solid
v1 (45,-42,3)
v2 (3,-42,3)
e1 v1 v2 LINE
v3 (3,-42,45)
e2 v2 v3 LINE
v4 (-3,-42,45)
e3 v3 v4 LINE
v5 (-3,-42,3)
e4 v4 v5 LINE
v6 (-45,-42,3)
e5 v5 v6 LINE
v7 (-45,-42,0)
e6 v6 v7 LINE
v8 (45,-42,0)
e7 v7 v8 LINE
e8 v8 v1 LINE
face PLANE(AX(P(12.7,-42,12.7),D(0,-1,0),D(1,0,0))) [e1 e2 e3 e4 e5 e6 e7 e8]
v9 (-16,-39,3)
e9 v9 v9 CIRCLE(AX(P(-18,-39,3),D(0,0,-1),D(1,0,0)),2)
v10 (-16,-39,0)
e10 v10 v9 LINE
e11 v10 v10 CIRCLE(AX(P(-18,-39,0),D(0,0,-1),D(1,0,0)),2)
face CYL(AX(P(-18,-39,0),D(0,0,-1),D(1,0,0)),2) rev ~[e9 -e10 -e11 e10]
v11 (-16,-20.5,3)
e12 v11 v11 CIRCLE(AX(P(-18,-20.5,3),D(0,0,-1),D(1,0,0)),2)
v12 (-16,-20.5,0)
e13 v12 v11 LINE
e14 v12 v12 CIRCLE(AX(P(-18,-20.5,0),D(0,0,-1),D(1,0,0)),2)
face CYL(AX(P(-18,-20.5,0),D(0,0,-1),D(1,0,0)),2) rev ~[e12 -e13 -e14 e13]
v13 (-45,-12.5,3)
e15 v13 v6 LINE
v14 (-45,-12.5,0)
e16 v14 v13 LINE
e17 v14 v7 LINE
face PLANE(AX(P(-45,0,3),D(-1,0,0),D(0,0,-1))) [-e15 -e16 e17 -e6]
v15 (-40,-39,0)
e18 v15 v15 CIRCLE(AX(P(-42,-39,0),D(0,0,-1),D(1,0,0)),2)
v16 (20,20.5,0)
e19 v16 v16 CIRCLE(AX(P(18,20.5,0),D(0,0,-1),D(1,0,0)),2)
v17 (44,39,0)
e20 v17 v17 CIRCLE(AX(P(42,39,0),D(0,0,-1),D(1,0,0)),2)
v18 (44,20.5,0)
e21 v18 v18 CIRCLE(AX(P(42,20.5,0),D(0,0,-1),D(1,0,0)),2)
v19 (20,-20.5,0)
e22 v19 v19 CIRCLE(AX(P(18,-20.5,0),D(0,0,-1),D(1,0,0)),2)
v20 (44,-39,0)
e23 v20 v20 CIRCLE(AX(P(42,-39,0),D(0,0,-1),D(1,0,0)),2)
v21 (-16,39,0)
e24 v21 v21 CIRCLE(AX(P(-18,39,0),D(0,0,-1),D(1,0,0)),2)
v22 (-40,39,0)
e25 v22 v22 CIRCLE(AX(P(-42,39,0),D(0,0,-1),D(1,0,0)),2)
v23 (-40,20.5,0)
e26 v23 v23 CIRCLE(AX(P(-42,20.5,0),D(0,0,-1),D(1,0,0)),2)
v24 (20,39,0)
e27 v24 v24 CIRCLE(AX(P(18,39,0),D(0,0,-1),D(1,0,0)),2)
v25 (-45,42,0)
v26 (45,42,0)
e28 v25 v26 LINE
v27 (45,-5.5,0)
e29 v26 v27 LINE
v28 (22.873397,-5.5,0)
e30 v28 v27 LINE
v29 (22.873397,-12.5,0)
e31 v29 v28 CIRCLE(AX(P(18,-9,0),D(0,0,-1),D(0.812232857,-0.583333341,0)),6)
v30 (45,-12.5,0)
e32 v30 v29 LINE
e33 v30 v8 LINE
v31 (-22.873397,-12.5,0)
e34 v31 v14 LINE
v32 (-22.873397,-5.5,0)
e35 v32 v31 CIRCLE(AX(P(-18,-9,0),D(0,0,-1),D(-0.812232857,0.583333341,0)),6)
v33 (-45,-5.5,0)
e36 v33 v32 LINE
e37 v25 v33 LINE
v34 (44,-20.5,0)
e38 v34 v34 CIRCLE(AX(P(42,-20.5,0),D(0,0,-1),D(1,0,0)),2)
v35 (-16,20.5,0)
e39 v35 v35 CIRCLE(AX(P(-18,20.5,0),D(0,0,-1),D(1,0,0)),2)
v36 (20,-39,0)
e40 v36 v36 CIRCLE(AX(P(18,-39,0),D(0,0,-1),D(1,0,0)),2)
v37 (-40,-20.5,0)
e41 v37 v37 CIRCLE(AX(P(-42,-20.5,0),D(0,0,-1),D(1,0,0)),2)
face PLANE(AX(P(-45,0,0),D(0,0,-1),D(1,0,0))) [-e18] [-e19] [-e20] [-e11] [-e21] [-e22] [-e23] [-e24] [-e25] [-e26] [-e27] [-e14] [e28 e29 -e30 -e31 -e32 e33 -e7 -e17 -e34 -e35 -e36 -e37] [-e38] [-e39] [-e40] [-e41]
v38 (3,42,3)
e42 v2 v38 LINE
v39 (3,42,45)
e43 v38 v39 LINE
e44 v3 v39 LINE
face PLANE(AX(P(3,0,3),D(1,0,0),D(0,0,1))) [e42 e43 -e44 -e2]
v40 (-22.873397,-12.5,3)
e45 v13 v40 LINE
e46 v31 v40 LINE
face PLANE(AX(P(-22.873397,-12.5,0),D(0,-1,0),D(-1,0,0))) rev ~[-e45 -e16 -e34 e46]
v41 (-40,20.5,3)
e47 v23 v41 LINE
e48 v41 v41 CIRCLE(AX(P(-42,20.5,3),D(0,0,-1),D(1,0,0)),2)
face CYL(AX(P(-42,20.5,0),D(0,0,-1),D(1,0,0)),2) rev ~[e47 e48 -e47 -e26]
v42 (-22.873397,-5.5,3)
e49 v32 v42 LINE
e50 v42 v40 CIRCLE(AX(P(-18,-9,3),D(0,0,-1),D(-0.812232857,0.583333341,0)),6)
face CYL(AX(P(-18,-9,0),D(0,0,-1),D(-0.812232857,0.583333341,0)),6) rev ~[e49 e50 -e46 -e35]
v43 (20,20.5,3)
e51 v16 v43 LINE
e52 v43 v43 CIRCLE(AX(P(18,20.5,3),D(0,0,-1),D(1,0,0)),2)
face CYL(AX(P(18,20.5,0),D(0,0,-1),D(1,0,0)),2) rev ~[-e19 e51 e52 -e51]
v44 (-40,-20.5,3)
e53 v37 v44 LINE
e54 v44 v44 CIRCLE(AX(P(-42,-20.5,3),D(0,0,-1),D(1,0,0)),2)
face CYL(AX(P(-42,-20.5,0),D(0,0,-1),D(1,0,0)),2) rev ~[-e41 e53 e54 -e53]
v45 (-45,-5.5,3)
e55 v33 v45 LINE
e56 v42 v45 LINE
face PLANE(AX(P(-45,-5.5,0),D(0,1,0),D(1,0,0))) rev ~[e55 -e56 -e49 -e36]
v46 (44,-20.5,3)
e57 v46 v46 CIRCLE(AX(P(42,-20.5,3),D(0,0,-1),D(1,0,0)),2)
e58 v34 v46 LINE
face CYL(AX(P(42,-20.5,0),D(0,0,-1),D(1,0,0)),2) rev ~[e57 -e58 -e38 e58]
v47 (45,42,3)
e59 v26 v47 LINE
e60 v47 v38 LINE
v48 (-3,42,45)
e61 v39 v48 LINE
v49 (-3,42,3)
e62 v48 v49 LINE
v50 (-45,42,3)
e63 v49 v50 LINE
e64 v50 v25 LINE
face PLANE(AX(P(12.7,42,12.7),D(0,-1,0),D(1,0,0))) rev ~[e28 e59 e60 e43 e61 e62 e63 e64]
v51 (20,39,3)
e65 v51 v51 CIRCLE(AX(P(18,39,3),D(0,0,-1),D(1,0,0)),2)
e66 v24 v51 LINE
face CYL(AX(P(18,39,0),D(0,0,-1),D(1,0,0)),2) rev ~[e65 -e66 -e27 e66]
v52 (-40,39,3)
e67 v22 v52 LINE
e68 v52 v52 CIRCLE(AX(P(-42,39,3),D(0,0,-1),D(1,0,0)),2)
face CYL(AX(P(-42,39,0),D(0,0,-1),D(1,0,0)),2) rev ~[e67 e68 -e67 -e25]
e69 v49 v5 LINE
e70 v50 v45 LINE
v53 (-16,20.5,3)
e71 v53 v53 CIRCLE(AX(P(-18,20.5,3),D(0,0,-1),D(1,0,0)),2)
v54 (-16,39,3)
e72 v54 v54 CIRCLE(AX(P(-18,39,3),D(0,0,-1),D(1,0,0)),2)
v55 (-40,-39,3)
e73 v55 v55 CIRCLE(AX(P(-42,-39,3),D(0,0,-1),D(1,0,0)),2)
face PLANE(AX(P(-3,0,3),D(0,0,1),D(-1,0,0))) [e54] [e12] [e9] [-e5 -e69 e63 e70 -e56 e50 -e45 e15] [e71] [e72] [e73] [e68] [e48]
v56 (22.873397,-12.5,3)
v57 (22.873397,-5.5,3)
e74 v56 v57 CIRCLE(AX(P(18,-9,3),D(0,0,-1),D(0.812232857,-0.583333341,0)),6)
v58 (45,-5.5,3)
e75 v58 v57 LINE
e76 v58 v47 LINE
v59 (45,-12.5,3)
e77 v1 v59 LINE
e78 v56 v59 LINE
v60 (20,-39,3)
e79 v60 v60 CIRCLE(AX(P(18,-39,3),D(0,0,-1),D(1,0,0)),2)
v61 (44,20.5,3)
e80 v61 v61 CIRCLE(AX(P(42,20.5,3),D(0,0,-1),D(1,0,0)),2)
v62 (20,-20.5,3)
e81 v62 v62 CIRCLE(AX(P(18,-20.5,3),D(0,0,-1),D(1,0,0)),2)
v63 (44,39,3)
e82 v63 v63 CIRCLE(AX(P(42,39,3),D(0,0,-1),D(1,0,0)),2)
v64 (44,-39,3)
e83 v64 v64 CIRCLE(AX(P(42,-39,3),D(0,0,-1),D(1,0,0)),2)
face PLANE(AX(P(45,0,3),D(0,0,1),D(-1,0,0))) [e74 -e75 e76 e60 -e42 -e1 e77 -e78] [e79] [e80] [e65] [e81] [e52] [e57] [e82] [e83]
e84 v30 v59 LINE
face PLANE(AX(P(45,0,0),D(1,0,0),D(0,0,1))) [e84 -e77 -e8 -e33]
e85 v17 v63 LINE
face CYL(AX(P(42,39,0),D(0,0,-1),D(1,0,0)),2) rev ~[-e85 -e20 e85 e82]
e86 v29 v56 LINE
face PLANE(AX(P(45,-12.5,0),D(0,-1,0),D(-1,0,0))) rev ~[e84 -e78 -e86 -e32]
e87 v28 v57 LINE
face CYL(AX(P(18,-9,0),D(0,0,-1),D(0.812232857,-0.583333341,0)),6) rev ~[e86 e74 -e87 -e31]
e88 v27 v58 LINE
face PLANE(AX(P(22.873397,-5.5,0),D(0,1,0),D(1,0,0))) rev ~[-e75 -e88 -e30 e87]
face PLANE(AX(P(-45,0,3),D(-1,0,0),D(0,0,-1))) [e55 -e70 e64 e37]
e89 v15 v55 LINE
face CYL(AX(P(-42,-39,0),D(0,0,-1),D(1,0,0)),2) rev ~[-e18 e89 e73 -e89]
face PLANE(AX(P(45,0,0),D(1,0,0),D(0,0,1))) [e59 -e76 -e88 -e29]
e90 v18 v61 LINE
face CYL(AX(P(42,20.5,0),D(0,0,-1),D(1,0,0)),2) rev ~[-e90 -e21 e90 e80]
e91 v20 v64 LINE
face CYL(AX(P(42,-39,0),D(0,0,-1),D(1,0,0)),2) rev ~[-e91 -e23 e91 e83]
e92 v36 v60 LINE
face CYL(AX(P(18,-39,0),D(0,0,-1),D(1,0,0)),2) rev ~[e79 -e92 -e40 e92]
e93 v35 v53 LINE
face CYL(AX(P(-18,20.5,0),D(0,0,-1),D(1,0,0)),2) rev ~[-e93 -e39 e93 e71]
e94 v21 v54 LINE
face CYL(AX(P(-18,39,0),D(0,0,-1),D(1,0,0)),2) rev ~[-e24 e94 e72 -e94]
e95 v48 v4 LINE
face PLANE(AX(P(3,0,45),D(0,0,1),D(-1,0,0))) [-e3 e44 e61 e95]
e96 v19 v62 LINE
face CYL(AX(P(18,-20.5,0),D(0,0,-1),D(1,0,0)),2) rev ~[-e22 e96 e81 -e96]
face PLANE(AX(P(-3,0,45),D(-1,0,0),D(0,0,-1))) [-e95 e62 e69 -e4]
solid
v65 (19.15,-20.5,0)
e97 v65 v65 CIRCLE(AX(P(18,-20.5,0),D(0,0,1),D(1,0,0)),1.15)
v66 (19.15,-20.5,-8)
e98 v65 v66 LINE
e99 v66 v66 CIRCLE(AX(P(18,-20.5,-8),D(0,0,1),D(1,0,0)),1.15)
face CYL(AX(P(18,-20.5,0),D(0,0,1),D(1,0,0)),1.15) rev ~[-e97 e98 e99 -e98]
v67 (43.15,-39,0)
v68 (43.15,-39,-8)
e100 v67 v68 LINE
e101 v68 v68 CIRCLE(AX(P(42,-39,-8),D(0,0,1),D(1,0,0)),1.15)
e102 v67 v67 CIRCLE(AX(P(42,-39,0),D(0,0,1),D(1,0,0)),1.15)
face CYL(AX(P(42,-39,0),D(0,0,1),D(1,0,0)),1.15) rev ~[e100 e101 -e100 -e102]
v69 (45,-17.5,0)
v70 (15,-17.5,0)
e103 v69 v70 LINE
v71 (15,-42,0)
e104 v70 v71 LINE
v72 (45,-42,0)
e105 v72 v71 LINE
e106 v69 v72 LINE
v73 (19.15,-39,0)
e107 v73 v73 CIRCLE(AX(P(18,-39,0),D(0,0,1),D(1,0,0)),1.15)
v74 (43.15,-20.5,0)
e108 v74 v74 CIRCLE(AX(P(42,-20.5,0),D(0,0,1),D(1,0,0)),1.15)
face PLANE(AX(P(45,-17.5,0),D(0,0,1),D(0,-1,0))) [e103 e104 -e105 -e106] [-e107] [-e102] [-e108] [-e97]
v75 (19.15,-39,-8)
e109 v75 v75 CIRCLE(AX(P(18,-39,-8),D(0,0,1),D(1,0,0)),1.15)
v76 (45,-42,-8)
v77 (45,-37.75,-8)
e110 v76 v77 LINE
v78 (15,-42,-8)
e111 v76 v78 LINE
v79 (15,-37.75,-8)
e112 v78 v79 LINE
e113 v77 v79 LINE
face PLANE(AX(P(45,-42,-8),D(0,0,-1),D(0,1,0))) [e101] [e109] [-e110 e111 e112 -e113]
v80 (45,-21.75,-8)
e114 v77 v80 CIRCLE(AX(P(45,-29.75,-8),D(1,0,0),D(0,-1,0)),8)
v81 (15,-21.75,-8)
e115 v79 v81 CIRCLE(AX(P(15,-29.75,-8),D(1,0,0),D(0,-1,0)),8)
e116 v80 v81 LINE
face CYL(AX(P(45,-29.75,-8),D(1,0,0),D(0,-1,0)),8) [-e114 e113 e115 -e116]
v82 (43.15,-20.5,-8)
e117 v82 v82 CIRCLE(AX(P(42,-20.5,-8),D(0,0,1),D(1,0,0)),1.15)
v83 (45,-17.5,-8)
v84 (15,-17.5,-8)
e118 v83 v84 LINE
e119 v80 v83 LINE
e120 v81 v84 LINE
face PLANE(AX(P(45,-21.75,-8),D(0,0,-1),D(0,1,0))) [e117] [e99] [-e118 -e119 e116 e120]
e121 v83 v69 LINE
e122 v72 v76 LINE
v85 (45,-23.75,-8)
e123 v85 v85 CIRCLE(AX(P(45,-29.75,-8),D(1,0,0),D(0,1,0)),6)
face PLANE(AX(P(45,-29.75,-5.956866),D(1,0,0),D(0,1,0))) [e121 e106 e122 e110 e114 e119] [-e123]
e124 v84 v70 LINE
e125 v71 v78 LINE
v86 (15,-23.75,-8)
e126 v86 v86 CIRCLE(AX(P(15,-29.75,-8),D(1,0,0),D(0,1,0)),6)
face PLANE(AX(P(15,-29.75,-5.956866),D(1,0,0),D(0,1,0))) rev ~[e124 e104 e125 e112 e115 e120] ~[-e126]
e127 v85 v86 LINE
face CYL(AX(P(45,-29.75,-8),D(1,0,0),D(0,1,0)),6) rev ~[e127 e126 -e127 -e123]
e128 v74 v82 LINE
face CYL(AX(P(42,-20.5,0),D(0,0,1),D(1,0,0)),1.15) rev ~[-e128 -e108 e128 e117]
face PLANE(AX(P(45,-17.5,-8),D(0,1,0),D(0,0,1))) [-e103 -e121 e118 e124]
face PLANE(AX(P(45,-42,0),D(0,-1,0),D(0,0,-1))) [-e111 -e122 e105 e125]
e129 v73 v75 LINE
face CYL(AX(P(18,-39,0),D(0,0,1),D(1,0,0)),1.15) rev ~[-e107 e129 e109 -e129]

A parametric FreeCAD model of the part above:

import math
import FreeCAD as App
import Part
import Sketcher

V = App.Vector
Q = App.Units.Quantity


def add_polygon(sketch, points):
    """Adds a closed chain of lines whose ends are joined by coincident constraints."""
    first, n = sketch.GeometryCount, len(points)
    for a, b in zip(points, points[1:] + points[:1]):
        sketch.addGeometry(Part.LineSegment(App.Vector(*a, 0), App.Vector(*b, 0)), False)
    for i in range(n):
        sketch.addConstraint(Sketcher.Constraint("Coincident", first + i, 2, first + (i + 1) % n, 1))

doc = App.newDocument("Part")
body = doc.addObject("PartDesign::Body", "Body")

# Sketch on XZ plane
sketch1 = body.newObject("Sketcher::SketchObject", "Sketch")
sketch1.AttachmentSupport = (doc.getObject("XZ_Plane"), [""])
sketch1.MapMode = "FlatFace"
add_polygon(sketch1, [(3, 45), (-3, 45), (-3, 3), (-45, 3), (-45, 0), (45, 0), (45, 3), (3, 3)])  # lines 0-7
sketch1.addConstraint(Sketcher.Constraint("Horizontal", 0))
sketch1.addConstraint(Sketcher.Constraint("Vertical", 1))
sketch1.addConstraint(Sketcher.Constraint("Horizontal", 2))
sketch1.addConstraint(Sketcher.Constraint("Vertical", 3))
sketch1.addConstraint(Sketcher.Constraint("Horizontal", 4))
sketch1.addConstraint(Sketcher.Constraint("Vertical", 5))
sketch1.addConstraint(Sketcher.Constraint("Horizontal", 6))
sketch1.addConstraint(Sketcher.Constraint("Vertical", 7))
sketch1.addConstraint(Sketcher.Constraint("Symmetric", 3, 2, 4, 2, -1, 1))
sketch1.addConstraint(Sketcher.Constraint("Symmetric", 1, 2, 6, 2, -2))
sketch1.addConstraint(Sketcher.Constraint("Equal", 6, 1))
sketch1.addConstraint(Sketcher.Constraint("DistanceX", 0, 2, 0, 1, Q("6 mm")))
sketch1.addConstraint(Sketcher.Constraint("DistanceX", 2, 2, 2, 1, Q("42 mm")))
sketch1.addConstraint(Sketcher.Constraint("DistanceY", 3, 2, 3, 1, Q("3 mm")))
pad1 = body.newObject("PartDesign::Pad", "Pad")
pad1.Profile = sketch1
pad1.Length = 84
pad1.Midplane = True

# Sketch on XY plane
sketch2 = body.newObject("Sketcher::SketchObject", "Sketch001")
sketch2.AttachmentSupport = (doc.getObject("XY_Plane"), [""])
sketch2.MapMode = "FlatFace"
sketch2.addGeometry(Part.LineSegment(V(45, -12.5, 0), V(22.873397, -12.5, 0)), False)
sketch2.addGeometry(Part.ArcOfCircle(Part.Circle(V(18, -9, 0), V(0, 0, 1), 6), math.radians(35.685335), math.radians(324.314665)), False)
sketch2.addGeometry(Part.LineSegment(V(22.873397, -5.5, 0), V(45, -5.5, 0)), False)
sketch2.addGeometry(Part.LineSegment(V(45, -5.5, 0), V(45, -12.5, 0)), False)
sketch2.addGeometry(Part.ArcOfCircle(Part.Circle(V(-18, -9, 0), V(0, 0, 1), 6), math.radians(-144.314665), math.radians(144.314665)), False)
sketch2.addGeometry(Part.LineSegment(V(-22.873397, -12.5, 0), V(-45, -12.5, 0)), False)
sketch2.addGeometry(Part.LineSegment(V(-45, -12.5, 0), V(-45, -5.5, 0)), False)
sketch2.addGeometry(Part.LineSegment(V(-45, -5.5, 0), V(-22.873397, -5.5, 0)), False)
sketch2.addConstraint(Sketcher.Constraint("Coincident", 0, 2, 1, 2))
sketch2.addConstraint(Sketcher.Constraint("Coincident", 1, 1, 2, 1))
sketch2.addConstraint(Sketcher.Constraint("Coincident", 2, 2, 3, 1))
sketch2.addConstraint(Sketcher.Constraint("Coincident", 3, 2, 0, 1))
sketch2.addConstraint(Sketcher.Constraint("Coincident", 4, 1, 5, 1))
sketch2.addConstraint(Sketcher.Constraint("Coincident", 5, 2, 6, 1))
sketch2.addConstraint(Sketcher.Constraint("Coincident", 6, 2, 7, 1))
sketch2.addConstraint(Sketcher.Constraint("Coincident", 7, 2, 4, 2))
sketch2.addConstraint(Sketcher.Constraint("Horizontal", 0))
sketch2.addConstraint(Sketcher.Constraint("Horizontal", 2))
sketch2.addConstraint(Sketcher.Constraint("Vertical", 3))
sketch2.addConstraint(Sketcher.Constraint("Horizontal", 5))
sketch2.addConstraint(Sketcher.Constraint("Vertical", 6))
sketch2.addConstraint(Sketcher.Constraint("Horizontal", 7))
sketch2.addConstraint(Sketcher.Constraint("Equal", 1, 4))
sketch2.addConstraint(Sketcher.Constraint("Symmetric", 1, 3, 4, 3, -2))
sketch2.addConstraint(Sketcher.Constraint("Symmetric", 3, 2, 5, 2, -2))
sketch2.addConstraint(Sketcher.Constraint("Horizontal", 2, 2, 6, 2))
sketch2.addConstraint(Sketcher.Constraint("Vertical", 0, 2, 1, 1))
sketch2.addConstraint(Sketcher.Constraint("Radius", 1, Q("6 mm")))
sketch2.addConstraint(Sketcher.Constraint("DistanceY", 3, 2, 3, 1, Q("7 mm")))
sketch2.addConstraint(Sketcher.Constraint("DistanceX", -1, 1, 1, 3, Q("18 mm")))
sketch2.addConstraint(Sketcher.Constraint("DistanceY", 1, 3, -1, 1, Q("9 mm")))
sketch2.addConstraint(Sketcher.Constraint("DistanceX", -1, 1, 2, 2, Q("45 mm")))
pocket1 = body.newObject("PartDesign::Pocket", "Pocket")
pocket1.Profile = sketch2
pocket1.Type = "ThroughAll"
pocket1.Reversed = True

# Sketch on XY plane
sketch3 = body.newObject("Sketcher::SketchObject", "Sketch002")
sketch3.AttachmentSupport = (doc.getObject("XY_Plane"), [""])
sketch3.MapMode = "FlatFace"
sketch3.addGeometry(Part.Circle(V(18, -20.5, 0), V(0, 0, 1), 2), False)
sketch3.addGeometry(Part.Circle(V(18, -39, 0), V(0, 0, 1), 2), False)
sketch3.addGeometry(Part.Circle(V(42, -20.5, 0), V(0, 0, 1), 2), False)
sketch3.addGeometry(Part.Circle(V(42, -39, 0), V(0, 0, 1), 2), False)
sketch3.addGeometry(Part.Circle(V(18, 20.5, 0), V(0, 0, 1), 2), False)
sketch3.addGeometry(Part.Circle(V(18, 39, 0), V(0, 0, 1), 2), False)
sketch3.addGeometry(Part.Circle(V(42, 20.5, 0), V(0, 0, 1), 2), False)
sketch3.addGeometry(Part.Circle(V(42, 39, 0), V(0, 0, 1), 2), False)
sketch3.addGeometry(Part.Circle(V(-42, 39, 0), V(0, 0, 1), 2), False)
sketch3.addGeometry(Part.Circle(V(-42, 20.5, 0), V(0, 0, 1), 2), False)
sketch3.addGeometry(Part.Circle(V(-18, 39, 0), V(0, 0, 1), 2), False)
sketch3.addGeometry(Part.Circle(V(-18, 20.5, 0), V(0, 0, 1), 2), False)
sketch3.addGeometry(Part.Circle(V(-42, -39, 0), V(0, 0, 1), 2), False)
sketch3.addGeometry(Part.Circle(V(-42, -20.5, 0), V(0, 0, 1), 2), False)
sketch3.addGeometry(Part.Circle(V(-18, -39, 0), V(0, 0, 1), 2), False)
sketch3.addGeometry(Part.Circle(V(-18, -20.5, 0), V(0, 0, 1), 2), False)
sketch3.addConstraint(Sketcher.Constraint("Equal", 0, 1))
sketch3.addConstraint(Sketcher.Constraint("Equal", 1, 2))
sketch3.addConstraint(Sketcher.Constraint("Equal", 2, 3))
sketch3.addConstraint(Sketcher.Constraint("Equal", 3, 4))
sketch3.addConstraint(Sketcher.Constraint("Equal", 4, 5))
sketch3.addConstraint(Sketcher.Constraint("Equal", 5, 6))
sketch3.addConstraint(Sketcher.Constraint("Equal", 6, 7))
sketch3.addConstraint(Sketcher.Constraint("Equal", 7, 8))
sketch3.addConstraint(Sketcher.Constraint("Equal", 8, 9))
sketch3.addConstraint(Sketcher.Constraint("Equal", 9, 10))
sketch3.addConstraint(Sketcher.Constraint("Equal", 10, 11))
sketch3.addConstraint(Sketcher.Constraint("Equal", 11, 12))
sketch3.addConstraint(Sketcher.Constraint("Equal", 12, 13))
sketch3.addConstraint(Sketcher.Constraint("Equal", 13, 14))
sketch3.addConstraint(Sketcher.Constraint("Equal", 14, 15))
sketch3.addConstraint(Sketcher.Constraint("Symmetric", 3, 3, 8, 3, -1, 1))
sketch3.addConstraint(Sketcher.Constraint("Symmetric", 2, 3, 9, 3, -1, 1))
sketch3.addConstraint(Sketcher.Constraint("Symmetric", 1, 3, 10, 3, -1, 1))
sketch3.addConstraint(Sketcher.Constraint("Symmetric", 0, 3, 11, 3, -1, 1))
sketch3.addConstraint(Sketcher.Constraint("Symmetric", 7, 3, 12, 3, -1, 1))
sketch3.addConstraint(Sketcher.Constraint("Symmetric", 6, 3, 13, 3, -1, 1))
sketch3.addConstraint(Sketcher.Constraint("Symmetric", 5, 3, 14, 3, -1, 1))
sketch3.addConstraint(Sketcher.Constraint("Symmetric", 4, 3, 15, 3, -1, 1))
sketch3.addConstraint(Sketcher.Constraint("Symmetric", 7, 3, 8, 3, -2))
sketch3.addConstraint(Sketcher.Constraint("Symmetric", 6, 3, 9, 3, -2))
sketch3.addConstraint(Sketcher.Constraint("Symmetric", 5, 3, 10, 3, -2))
sketch3.addConstraint(Sketcher.Constraint("Symmetric", 4, 3, 11, 3, -2))
sketch3.addConstraint(Sketcher.Constraint("Horizontal", 0, 3, 2, 3))
sketch3.addConstraint(Sketcher.Constraint("Horizontal", 1, 3, 3, 3))
sketch3.addConstraint(Sketcher.Constraint("Vertical", 0, 3, 1, 3))
sketch3.addConstraint(Sketcher.Constraint("Vertical", 2, 3, 3, 3))
sketch3.addConstraint(Sketcher.Constraint("Diameter", 0, Q("4 mm")))
sketch3.addConstraint(Sketcher.Constraint("DistanceX", -1, 1, 0, 3, Q("18 mm")))
sketch3.addConstraint(Sketcher.Constraint("DistanceY", 1, 3, -1, 1, Q("39 mm")))
sketch3.addConstraint(Sketcher.Constraint("DistanceX", -1, 1, 2, 3, Q("42 mm")))
sketch3.addConstraint(Sketcher.Constraint("DistanceY", 0, 3, 4, 3, Q("41 mm")))
pocket2 = body.newObject("PartDesign::Pocket", "Pocket001")
pocket2.Profile = sketch3
pocket2.Type = "ThroughAll"
pocket2.Reversed = True
body2 = doc.addObject("PartDesign::Body", "Body001")

# Sketch on YZ plane
sketch4 = body2.newObject("Sketcher::SketchObject", "Sketch003")
sketch4.AttachmentSupport = (doc.getObject("YZ_Plane001"), [""])
sketch4.MapMode = "FlatFace"
sketch4.AttachmentOffset = App.Placement(V(0, 0, 45), App.Rotation())
sketch4.addGeometry(Part.LineSegment(V(-17.5, 0, 0), V(-42, 0, 0)), False)
sketch4.addGeometry(Part.LineSegment(V(-42, 0, 0), V(-42, -8, 0)), False)
sketch4.addGeometry(Part.LineSegment(V(-42, -8, 0), V(-37.75, -8, 0)), False)
sketch4.addGeometry(Part.ArcOfCircle(Part.Circle(V(-29.75, -8, 0), V(0, 0, 1), 8), math.radians(180), math.radians(360)), False)
sketch4.addGeometry(Part.LineSegment(V(-21.75, -8, 0), V(-17.5, -8, 0)), False)
sketch4.addGeometry(Part.LineSegment(V(-17.5, -8, 0), V(-17.5, 0, 0)), False)
sketch4.addGeometry(Part.Circle(V(-29.75, -8, 0), V(0, 0, 1), 6), False)
sketch4.addConstraint(Sketcher.Constraint("Coincident", 0, 2, 1, 1))
sketch4.addConstraint(Sketcher.Constraint("Coincident", 1, 2, 2, 1))
sketch4.addConstraint(Sketcher.Constraint("Coincident", 2, 2, 3, 1))
sketch4.addConstraint(Sketcher.Constraint("Coincident", 3, 2, 4, 1))
sketch4.addConstraint(Sketcher.Constraint("Coincident", 4, 2, 5, 1))
sketch4.addConstraint(Sketcher.Constraint("Coincident", 5, 2, 0, 1))
sketch4.addConstraint(Sketcher.Constraint("Horizontal", 0))
sketch4.addConstraint(Sketcher.Constraint("Vertical", 1))
sketch4.addConstraint(Sketcher.Constraint("Horizontal", 2))
sketch4.addConstraint(Sketcher.Constraint("Horizontal", 4))
sketch4.addConstraint(Sketcher.Constraint("Vertical", 5))
sketch4.addConstraint(Sketcher.Constraint("Coincident", 6, 3, 3, 3))
sketch4.addConstraint(Sketcher.Constraint("PointOnObject", 0, 2, -1))
sketch4.addConstraint(Sketcher.Constraint("Horizontal", 6, 3, 1, 2))
sketch4.addConstraint(Sketcher.Constraint("Horizontal", 2, 2, 3, 2))
sketch4.addConstraint(Sketcher.Constraint("Equal", 2, 4))
sketch4.addConstraint(Sketcher.Constraint("Diameter", 6, Q("12 mm")))
sketch4.addConstraint(Sketcher.Constraint("Radius", 3, Q("8 mm")))
sketch4.addConstraint(Sketcher.Constraint("DistanceY", 1, 2, 1, 1, Q("8 mm")))
sketch4.addConstraint(Sketcher.Constraint("DistanceX", 0, 2, 0, 1, Q("24.5 mm")))
sketch4.addConstraint(Sketcher.Constraint("DistanceX", 0, 2, -1, 1, Q("42 mm")))
pad2 = body2.newObject("PartDesign::Pad", "Pad001")
pad2.Profile = sketch4
pad2.Length = 30
pad2.Reversed = True

# Sketch on XY plane
sketch5 = body2.newObject("Sketcher::SketchObject", "Sketch004")
sketch5.AttachmentSupport = (doc.getObject("XY_Plane001"), [""])
sketch5.MapMode = "FlatFace"
sketch5.addGeometry(Part.Circle(V(18, -20.5, 0), V(0, 0, 1), 1.15), False)
sketch5.addGeometry(Part.Circle(V(18, -39, 0), V(0, 0, 1), 1.15), False)
sketch5.addGeometry(Part.Circle(V(42, -20.5, 0), V(0, 0, 1), 1.15), False)
sketch5.addGeometry(Part.Circle(V(42, -39, 0), V(0, 0, 1), 1.15), False)
sketch5.addConstraint(Sketcher.Constraint("Equal", 0, 1))
sketch5.addConstraint(Sketcher.Constraint("Equal", 1, 2))
sketch5.addConstraint(Sketcher.Constraint("Equal", 2, 3))
sketch5.addConstraint(Sketcher.Constraint("Horizontal", 0, 3, 2, 3))
sketch5.addConstraint(Sketcher.Constraint("Horizontal", 1, 3, 3, 3))
sketch5.addConstraint(Sketcher.Constraint("Vertical", 0, 3, 1, 3))
sketch5.addConstraint(Sketcher.Constraint("Vertical", 2, 3, 3, 3))
sketch5.addConstraint(Sketcher.Constraint("Diameter", 0, Q("2.3 mm")))
sketch5.addConstraint(Sketcher.Constraint("DistanceX", -1, 1, 0, 3, Q("18 mm")))
sketch5.addConstraint(Sketcher.Constraint("DistanceY", 1, 3, -1, 1, Q("39 mm")))
sketch5.addConstraint(Sketcher.Constraint("DistanceX", -1, 1, 2, 3, Q("42 mm")))
sketch5.addConstraint(Sketcher.Constraint("DistanceY", 0, 3, -1, 1, Q("20.5 mm")))
pocket3 = body2.newObject("PartDesign::Pocket", "Pocket002")
pocket3.Profile = sketch5
pocket3.Type = "ThroughAll"

doc.recompute()
